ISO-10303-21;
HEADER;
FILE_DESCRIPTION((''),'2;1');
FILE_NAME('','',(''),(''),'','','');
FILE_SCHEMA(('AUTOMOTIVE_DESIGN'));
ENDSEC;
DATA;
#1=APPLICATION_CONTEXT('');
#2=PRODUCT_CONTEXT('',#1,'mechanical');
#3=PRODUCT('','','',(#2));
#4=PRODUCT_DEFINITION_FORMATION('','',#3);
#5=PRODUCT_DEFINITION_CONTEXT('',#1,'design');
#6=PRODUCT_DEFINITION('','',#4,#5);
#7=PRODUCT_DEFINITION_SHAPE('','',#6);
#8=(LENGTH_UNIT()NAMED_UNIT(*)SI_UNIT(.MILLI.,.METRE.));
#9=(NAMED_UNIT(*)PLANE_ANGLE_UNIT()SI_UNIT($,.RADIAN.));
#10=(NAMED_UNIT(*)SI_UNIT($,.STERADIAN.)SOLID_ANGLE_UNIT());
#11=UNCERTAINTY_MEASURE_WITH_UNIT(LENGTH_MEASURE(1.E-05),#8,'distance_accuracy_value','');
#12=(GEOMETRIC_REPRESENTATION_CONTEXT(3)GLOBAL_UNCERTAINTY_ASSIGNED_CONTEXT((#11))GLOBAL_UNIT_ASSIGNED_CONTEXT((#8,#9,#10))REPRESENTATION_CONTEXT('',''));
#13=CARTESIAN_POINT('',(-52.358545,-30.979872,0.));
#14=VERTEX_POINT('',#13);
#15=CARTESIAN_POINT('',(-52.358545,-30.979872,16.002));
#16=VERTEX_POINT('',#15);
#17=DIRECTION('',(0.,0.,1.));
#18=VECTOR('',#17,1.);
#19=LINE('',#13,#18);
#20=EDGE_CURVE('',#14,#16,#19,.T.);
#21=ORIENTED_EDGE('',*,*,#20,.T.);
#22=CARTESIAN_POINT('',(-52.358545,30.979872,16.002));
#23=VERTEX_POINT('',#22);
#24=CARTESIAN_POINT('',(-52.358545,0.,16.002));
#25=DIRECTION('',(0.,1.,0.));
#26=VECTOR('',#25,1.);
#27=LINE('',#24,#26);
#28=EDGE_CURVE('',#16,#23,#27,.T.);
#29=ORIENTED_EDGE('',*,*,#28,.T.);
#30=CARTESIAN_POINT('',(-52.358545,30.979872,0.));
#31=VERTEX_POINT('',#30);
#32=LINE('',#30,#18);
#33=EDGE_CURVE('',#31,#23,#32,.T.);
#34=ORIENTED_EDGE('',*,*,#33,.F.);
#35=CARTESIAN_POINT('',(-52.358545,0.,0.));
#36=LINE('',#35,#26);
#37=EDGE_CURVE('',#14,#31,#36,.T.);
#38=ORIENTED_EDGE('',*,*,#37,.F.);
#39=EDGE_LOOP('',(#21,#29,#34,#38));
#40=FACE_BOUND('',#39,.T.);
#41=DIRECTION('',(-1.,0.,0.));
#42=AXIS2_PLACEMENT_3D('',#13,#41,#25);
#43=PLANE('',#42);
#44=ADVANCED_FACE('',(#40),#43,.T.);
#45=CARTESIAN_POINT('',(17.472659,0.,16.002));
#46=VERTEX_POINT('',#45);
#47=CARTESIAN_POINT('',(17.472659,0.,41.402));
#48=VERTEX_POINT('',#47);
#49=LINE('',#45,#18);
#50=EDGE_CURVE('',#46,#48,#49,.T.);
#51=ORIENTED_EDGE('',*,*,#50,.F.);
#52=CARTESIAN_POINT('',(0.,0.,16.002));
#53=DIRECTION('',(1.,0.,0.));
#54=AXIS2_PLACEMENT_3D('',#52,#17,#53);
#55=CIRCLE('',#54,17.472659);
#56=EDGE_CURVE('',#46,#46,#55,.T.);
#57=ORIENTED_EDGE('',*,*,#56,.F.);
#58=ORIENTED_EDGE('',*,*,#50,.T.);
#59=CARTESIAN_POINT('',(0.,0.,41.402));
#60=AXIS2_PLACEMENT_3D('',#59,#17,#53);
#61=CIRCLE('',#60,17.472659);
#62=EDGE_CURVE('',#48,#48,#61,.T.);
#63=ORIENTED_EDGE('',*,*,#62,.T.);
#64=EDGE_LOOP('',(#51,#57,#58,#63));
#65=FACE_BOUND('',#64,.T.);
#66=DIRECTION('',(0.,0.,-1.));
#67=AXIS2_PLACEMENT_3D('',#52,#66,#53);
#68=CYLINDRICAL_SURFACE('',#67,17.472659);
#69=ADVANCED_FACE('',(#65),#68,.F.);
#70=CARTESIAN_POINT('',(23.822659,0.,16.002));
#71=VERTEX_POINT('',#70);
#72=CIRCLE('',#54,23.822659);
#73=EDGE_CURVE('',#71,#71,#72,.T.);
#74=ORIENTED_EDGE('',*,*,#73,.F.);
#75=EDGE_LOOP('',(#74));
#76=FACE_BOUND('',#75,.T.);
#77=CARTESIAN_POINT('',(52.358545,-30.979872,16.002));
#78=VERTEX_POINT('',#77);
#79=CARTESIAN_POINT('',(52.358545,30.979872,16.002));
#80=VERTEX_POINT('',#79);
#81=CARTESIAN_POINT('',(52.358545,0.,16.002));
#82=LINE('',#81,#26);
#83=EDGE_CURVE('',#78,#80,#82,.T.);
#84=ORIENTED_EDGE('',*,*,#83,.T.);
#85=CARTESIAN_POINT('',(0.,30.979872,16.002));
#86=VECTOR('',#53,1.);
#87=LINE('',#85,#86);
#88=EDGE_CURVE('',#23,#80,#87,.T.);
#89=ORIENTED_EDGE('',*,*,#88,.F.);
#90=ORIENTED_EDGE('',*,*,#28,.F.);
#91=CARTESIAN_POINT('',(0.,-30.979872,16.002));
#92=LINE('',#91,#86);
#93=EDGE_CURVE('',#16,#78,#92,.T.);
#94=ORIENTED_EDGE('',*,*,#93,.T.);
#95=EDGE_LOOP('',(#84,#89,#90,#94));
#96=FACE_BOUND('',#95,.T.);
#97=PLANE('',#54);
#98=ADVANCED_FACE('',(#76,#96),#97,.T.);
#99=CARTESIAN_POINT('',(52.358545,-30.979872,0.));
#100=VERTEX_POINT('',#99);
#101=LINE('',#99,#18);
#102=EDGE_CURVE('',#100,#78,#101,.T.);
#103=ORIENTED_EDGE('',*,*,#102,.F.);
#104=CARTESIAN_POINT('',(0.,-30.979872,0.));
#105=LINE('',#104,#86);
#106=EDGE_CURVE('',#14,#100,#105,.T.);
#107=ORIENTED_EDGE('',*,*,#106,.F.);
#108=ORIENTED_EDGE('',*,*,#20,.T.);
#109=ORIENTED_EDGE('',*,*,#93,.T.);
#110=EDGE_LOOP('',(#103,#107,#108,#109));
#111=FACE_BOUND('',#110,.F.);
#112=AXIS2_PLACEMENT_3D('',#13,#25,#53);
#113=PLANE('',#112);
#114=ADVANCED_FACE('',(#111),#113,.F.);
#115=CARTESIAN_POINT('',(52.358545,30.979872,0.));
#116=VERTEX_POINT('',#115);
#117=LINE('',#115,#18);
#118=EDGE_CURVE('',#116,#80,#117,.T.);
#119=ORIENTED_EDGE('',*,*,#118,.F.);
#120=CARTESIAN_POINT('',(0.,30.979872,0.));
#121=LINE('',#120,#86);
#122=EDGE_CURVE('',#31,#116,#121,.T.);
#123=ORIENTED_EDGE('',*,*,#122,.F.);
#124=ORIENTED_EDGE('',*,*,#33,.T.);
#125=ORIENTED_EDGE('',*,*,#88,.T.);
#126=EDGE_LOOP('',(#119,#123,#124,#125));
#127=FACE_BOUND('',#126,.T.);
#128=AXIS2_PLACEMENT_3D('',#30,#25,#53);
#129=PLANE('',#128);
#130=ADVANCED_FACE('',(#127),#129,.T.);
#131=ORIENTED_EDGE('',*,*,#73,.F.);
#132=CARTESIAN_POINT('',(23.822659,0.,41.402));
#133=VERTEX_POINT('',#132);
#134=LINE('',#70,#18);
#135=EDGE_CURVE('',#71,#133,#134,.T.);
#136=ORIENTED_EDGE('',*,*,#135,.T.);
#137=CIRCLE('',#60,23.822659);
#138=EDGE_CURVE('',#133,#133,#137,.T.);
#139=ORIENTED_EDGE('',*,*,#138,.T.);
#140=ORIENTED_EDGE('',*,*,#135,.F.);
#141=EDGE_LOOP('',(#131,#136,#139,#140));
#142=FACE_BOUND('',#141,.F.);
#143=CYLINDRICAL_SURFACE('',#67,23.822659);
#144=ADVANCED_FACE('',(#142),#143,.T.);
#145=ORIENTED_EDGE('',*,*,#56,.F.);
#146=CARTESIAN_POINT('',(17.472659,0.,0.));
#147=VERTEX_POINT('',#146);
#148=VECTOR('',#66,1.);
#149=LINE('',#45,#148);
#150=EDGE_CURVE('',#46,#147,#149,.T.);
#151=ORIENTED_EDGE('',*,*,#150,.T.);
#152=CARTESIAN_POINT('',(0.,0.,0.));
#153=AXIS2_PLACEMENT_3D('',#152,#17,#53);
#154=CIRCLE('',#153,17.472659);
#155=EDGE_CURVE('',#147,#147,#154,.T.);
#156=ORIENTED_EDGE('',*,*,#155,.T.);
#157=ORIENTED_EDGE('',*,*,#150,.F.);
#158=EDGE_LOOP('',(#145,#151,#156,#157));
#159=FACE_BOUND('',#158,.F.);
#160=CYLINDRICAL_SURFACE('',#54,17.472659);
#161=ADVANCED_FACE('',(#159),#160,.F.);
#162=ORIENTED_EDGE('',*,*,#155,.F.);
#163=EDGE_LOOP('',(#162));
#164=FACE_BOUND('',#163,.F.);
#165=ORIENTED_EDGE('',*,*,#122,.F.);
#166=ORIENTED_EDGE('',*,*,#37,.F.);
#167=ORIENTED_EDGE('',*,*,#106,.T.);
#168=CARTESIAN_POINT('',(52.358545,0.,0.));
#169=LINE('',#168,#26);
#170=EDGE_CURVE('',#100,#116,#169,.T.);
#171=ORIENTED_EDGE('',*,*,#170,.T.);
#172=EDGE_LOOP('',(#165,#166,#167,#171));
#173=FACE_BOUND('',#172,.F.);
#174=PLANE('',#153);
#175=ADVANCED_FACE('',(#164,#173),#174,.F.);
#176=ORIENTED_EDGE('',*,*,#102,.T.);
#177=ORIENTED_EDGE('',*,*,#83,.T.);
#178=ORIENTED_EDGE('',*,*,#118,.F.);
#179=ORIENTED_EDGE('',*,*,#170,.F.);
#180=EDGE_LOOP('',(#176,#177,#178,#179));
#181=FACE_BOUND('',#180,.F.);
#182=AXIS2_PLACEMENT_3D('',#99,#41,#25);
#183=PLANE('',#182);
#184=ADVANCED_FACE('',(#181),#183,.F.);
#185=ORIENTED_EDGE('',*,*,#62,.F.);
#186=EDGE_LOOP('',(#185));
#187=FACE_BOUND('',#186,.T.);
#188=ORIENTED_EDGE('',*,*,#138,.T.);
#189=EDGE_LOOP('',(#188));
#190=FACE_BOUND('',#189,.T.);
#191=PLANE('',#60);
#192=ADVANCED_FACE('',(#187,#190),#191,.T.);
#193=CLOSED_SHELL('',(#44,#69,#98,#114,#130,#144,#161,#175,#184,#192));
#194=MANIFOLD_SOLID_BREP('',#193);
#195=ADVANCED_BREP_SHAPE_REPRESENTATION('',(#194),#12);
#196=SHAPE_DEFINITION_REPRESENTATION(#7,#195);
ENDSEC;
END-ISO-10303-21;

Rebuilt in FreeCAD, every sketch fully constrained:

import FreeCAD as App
import Part
import Sketcher
Q = App.Units.Quantity

doc = App.newDocument("Part")
body = doc.addObject("PartDesign::Body", "Body")

sketch1 = body.newObject("Sketcher::SketchObject", "Sketch")
sketch1.AttachmentSupport = (doc.getObject("XY_Plane"), [""])
sketch1.MapMode = "FlatFace"
sketch1.addGeometry([
    Part.LineSegment(App.Vector(-52, 31, 0), App.Vector(-52, -31, 0)),
    Part.LineSegment(App.Vector(-52, -31, 0), App.Vector(52, -31, 0)),
    Part.LineSegment(App.Vector(52, -31, 0), App.Vector(52, 31, 0)),
    Part.LineSegment(App.Vector(52, 31, 0), App.Vector(-52, 31, 0)),
], False)
sketch1.addConstraint([
    Sketcher.Constraint("Coincident", 0, 2, 1, 1),
    Sketcher.Constraint("Coincident", 1, 2, 2, 1),
    Sketcher.Constraint("Coincident", 2, 2, 3, 1),
    Sketcher.Constraint("Coincident", 3, 2, 0, 1),
    Sketcher.Constraint("Vertical", 0),
    Sketcher.Constraint("Horizontal", 1),
    Sketcher.Constraint("Vertical", 2),
    Sketcher.Constraint("Horizontal", 3),
    Sketcher.Constraint("Symmetric", 0, 2, 2, 2, -1, 1),
    Sketcher.Constraint("DistanceX", 1, 1, 1, 2, Q("104.71709 mm")),
    Sketcher.Constraint("DistanceY", 0, 2, 0, 1, Q("61.959744 mm")),
])
pad1 = body.newObject("PartDesign::Pad", "Pad")
pad1.Profile = sketch1
pad1.Length = Q("0.63 in")

sketch2 = body.newObject("Sketcher::SketchObject", "Sketch001")
sketch2.AttachmentSupport = (doc.getObject("XY_Plane"), [""])
sketch2.MapMode = "FlatFace"
sketch2.AttachmentOffset = App.Placement(App.Vector(0, 0, 0.63 * 25.4), App.Rotation())
sketch2.addGeometry([
    Part.Circle(App.Vector(0, 0, 0), App.Vector(0, 0, 1), 24),
    Part.Circle(App.Vector(0, 0, 0), App.Vector(0, 0, 1), 17),
], False)
sketch2.addConstraint([
    Sketcher.Constraint("Coincident", 0, 3, -1, 1),
    Sketcher.Constraint("Coincident", 1, 3, -1, 1),
    Sketcher.Constraint("Diameter", 0, Q("1.8757999 in")),
    Sketcher.Constraint("Diameter", 1, Q("1.3757999 in")),
])
pad2 = body.newObject("PartDesign::Pad", "Pad001")
pad2.Profile = sketch2
pad2.Length = Q("1 in")

sketch3 = body.newObject("Sketcher::SketchObject", "Sketch002")
sketch3.AttachmentSupport = (doc.getObject("XY_Plane"), [""])
sketch3.MapMode = "FlatFace"
sketch3.AttachmentOffset = App.Placement(App.Vector(0, 0, 0.63 * 25.4), App.Rotation())
sketch3.addGeometry(Part.Circle(App.Vector(0, 0, 0), App.Vector(0, 0, 1), 17), False)
sketch3.addConstraint([
    Sketcher.Constraint("Coincident", 0, 3, -1, 1),
    Sketcher.Constraint("Diameter", 0, Q("1.3757999 in")),
])
pocket1 = body.newObject("PartDesign::Pocket", "Pocket")
pocket1.Profile = sketch3
pocket1.Length = Q("1 in")

doc.recompute()
